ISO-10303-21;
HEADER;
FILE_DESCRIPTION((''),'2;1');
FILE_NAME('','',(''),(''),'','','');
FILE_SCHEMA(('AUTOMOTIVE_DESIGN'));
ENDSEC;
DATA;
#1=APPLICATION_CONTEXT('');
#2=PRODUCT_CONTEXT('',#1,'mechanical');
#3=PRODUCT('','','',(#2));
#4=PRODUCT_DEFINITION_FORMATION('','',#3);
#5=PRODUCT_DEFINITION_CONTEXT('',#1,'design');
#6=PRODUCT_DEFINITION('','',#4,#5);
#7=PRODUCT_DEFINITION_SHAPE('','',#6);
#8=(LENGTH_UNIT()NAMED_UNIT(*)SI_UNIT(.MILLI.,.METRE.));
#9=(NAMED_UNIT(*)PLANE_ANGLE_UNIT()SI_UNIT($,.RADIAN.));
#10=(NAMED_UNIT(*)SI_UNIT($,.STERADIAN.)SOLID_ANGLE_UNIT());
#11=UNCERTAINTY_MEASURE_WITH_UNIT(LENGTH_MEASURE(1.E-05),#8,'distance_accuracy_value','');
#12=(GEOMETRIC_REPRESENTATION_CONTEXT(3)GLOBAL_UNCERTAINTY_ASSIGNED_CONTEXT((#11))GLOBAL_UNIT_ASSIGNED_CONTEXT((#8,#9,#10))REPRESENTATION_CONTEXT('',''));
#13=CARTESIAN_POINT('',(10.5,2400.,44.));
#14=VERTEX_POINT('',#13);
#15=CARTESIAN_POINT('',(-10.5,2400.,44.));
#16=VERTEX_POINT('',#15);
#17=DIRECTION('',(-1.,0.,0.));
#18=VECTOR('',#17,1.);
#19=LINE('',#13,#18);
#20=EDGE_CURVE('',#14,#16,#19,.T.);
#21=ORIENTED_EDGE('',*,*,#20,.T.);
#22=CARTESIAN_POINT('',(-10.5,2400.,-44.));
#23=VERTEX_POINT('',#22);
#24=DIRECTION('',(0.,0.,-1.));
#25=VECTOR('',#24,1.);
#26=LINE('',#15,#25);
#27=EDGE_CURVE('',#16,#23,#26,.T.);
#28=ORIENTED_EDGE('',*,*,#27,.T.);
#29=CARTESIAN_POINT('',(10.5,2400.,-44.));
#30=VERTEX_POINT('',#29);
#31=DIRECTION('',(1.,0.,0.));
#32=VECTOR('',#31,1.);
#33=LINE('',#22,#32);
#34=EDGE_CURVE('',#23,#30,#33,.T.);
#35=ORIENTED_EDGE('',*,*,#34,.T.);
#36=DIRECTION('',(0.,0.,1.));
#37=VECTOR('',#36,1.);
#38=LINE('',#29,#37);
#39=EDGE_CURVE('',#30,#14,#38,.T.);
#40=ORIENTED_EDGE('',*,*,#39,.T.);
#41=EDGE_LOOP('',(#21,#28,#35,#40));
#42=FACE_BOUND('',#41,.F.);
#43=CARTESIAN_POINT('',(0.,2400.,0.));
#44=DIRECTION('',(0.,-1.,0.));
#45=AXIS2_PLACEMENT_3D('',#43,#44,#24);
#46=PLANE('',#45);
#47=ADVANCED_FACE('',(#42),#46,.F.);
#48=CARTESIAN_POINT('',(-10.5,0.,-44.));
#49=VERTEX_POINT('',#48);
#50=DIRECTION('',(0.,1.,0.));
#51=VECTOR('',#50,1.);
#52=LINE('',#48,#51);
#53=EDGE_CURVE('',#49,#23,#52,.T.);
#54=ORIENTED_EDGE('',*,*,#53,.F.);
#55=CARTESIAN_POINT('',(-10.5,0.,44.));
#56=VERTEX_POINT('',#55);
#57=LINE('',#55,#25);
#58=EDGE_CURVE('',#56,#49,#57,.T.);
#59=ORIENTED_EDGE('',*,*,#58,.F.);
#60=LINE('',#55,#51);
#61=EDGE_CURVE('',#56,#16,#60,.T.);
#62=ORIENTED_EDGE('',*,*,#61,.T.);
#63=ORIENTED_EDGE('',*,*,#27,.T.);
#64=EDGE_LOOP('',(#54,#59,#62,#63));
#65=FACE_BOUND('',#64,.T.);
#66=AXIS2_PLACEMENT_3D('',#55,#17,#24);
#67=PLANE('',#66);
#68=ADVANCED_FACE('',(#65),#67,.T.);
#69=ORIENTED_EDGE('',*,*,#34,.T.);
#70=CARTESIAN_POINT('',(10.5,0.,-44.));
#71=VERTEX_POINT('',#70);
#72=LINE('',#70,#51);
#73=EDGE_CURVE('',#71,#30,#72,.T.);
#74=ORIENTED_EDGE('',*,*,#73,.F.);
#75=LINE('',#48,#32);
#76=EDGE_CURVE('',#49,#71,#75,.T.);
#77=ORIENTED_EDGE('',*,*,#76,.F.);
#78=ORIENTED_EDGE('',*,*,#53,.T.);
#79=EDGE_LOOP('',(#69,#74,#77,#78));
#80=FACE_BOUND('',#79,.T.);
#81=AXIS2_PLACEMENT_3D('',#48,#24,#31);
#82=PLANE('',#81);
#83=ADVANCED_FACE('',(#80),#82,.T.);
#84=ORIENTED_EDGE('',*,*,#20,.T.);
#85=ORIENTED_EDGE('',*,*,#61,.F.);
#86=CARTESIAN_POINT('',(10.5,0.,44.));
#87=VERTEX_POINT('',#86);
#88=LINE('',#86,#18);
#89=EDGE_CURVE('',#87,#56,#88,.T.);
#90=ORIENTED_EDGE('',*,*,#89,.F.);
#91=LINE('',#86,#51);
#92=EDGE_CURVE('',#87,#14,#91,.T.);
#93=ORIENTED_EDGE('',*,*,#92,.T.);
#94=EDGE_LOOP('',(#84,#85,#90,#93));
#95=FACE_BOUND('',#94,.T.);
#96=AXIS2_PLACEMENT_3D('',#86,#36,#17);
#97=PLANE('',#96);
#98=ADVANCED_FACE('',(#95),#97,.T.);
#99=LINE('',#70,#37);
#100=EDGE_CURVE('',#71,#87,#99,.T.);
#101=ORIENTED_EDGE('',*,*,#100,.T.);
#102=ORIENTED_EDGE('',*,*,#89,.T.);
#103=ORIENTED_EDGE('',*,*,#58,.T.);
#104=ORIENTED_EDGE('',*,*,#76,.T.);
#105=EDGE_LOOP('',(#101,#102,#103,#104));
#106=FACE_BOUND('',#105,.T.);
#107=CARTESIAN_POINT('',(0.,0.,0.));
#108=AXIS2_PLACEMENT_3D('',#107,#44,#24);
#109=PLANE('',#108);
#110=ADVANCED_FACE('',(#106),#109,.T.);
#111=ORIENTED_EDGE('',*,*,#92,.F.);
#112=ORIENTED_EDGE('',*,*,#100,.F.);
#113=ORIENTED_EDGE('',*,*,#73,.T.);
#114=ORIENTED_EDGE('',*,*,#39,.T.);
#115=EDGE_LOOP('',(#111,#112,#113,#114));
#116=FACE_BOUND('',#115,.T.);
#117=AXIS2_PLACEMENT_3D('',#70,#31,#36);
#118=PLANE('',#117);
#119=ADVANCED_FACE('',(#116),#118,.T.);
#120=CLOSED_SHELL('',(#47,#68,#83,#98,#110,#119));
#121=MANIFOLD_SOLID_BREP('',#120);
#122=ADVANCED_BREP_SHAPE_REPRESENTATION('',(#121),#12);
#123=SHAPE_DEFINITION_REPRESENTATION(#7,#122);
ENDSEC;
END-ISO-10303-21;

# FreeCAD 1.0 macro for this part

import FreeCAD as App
import Part
import Sketcher
from FreeCAD import Vector
Q = App.Units.Quantity

doc = App.newDocument("Part")
params = doc.addObject("Spreadsheet::Sheet", "Params")
for row, (alias, value) in enumerate([
    ("sketch1_width", "21 mm"),
    ("sketch1_height", "88 mm"),
    ("pad1_length", "2400 mm"),
], start=1):
    params.set(f"A{row}", alias)
    params.set(f"B{row}", "=" + value)
    params.setAlias(f"B{row}", alias)

body = doc.addObject("PartDesign::Body", "Body")

sketch1 = body.newObject("Sketcher::SketchObject", "Sketch")
sketch1.AttachmentSupport = (doc.getObject("XZ_Plane"), [""])
sketch1.MapMode = "FlatFace"
sketch1.addGeometry([
    Part.LineSegment(Vector(-10, 44, 0), Vector(-10, -44, 0)),
    Part.LineSegment(Vector(-10, -44, 0), Vector(10, -44, 0)),
    Part.LineSegment(Vector(10, -44, 0), Vector(10, 44, 0)),
    Part.LineSegment(Vector(10, 44, 0), Vector(-10, 44, 0)),
], False)
sketch1.addConstraint([
    Sketcher.Constraint("Coincident", 0, 2, 1, 1),
    Sketcher.Constraint("Coincident", 1, 2, 2, 1),
    Sketcher.Constraint("Coincident", 2, 2, 3, 1),
    Sketcher.Constraint("Coincident", 3, 2, 0, 1),
    Sketcher.Constraint("Vertical", 0),
    Sketcher.Constraint("Horizontal", 1),
    Sketcher.Constraint("Vertical", 2),
    Sketcher.Constraint("Horizontal", 3),
    Sketcher.Constraint("Symmetric", 0, 2, 2, 2, -1, 1),
    Sketcher.Constraint("DistanceX", 1, 1, 1, 2, Q("21 mm")),
    Sketcher.Constraint("DistanceY", 0, 2, 0, 1, Q("88 mm")),
])
sketch1.setExpression("Constraints[9]", "Params.sketch1_width")
sketch1.setExpression("Constraints[10]", "Params.sketch1_height")
pad1 = body.newObject("PartDesign::Pad", "Pad")
pad1.Profile = sketch1
pad1.setExpression("Length", "Params.pad1_length")
pad1.Reversed = True

doc.recompute()
